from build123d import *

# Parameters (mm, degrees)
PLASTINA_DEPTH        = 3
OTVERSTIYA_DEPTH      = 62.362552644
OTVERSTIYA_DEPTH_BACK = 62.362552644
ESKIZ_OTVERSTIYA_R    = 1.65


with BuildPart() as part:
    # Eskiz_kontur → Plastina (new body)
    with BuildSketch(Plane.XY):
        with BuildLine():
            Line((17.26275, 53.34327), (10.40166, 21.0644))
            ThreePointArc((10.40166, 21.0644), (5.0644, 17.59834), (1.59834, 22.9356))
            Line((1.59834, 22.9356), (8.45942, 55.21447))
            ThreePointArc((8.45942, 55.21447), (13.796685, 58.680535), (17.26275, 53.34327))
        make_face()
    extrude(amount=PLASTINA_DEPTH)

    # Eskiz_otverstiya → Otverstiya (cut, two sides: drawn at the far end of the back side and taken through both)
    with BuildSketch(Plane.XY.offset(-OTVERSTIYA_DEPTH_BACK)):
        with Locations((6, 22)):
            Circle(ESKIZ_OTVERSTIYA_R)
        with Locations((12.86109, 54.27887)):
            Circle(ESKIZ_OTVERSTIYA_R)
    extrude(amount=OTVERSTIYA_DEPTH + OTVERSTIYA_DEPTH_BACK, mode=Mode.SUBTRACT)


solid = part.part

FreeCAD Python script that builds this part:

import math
import FreeCAD as App
import Part
import Sketcher

V = App.Vector
Q = App.Units.Quantity

doc = App.newDocument("Part")
body = doc.addObject("PartDesign::Body", "Body")

sketch1 = doc.addObject("Sketcher::SketchObject", "Sketch")
body.addObject(sketch1)
sketch1.AttachmentSupport = (doc.XY_Plane, [""])
sketch1.MapMode = "FlatFace"
sketch1.addGeometry([
    Part.LineSegment(V(10.40166, 21.0644, 0), V(17.26275, 53.34327, 0)),
    Part.ArcOfCircle(Part.Circle(V(12.861085, 54.27887, 0), V(0, 0, 1), 4.5), math.radians(-11.999965), math.radians(168.000035)),
    Part.LineSegment(V(8.45942, 55.21447, 0), V(1.59834, 22.9356, 0)),
    Part.ArcOfCircle(Part.Circle(V(6, 22, 0), V(0, 0, 1), 4.499995), math.radians(168.000021), math.radians(348.000021)),
], False)
sketch1.addConstraint([
    Sketcher.Constraint("Tangent", 0, 2, 1, 1),
    Sketcher.Constraint("Tangent", 1, 2, 2, 1),
    Sketcher.Constraint("Tangent", 2, 2, 3, 1),
    Sketcher.Constraint("Tangent", 3, 2, 0, 1),
    Sketcher.Constraint("Parallel", 0, 2),
    Sketcher.Constraint("Radius", 1, 4.5),
    Sketcher.Constraint("Angle", 0, Q("77.999993 deg")),
    Sketcher.Constraint("Distance", 0, 33.0),
    Sketcher.Constraint("DistanceX", -1, 1, 3, 3, 6.0),
    Sketcher.Constraint("DistanceY", -1, 1, 3, 3, 22.0),
])
pad1 = doc.addObject("PartDesign::Pad", "Pad")
body.addObject(pad1)
pad1.Profile = sketch1
pad1.Length = 3

sketch2 = doc.addObject("Sketcher::SketchObject", "Sketch001")
body.addObject(sketch2)
sketch2.AttachmentSupport = (doc.XY_Plane, [""])
sketch2.MapMode = "FlatFace"
sketch2.addGeometry([
    Part.Circle(V(6, 22, 0), V(0, 0, 1), 1.65),
    Part.Circle(V(12.86109, 54.27887, 0), V(0, 0, 1), 1.65),
], False)
sketch2.addConstraint([
    Sketcher.Constraint("Equal", 0, 1),
    Sketcher.Constraint("Diameter", 0, 3.3),
    Sketcher.Constraint("DistanceX", -1, 1, 0, 3, 6.0),
    Sketcher.Constraint("DistanceY", -1, 1, 0, 3, 22.0),
    Sketcher.Constraint("DistanceX", -1, 1, 1, 3, 12.86109),
    Sketcher.Constraint("DistanceY", -1, 1, 1, 3, 54.27887),
])
pocket1 = doc.addObject("PartDesign::Pocket", "Pocket")
body.addObject(pocket1)
pocket1.Profile = sketch2
pocket1.Type = "ThroughAll"
pocket1.Midplane = True

doc.recompute()
